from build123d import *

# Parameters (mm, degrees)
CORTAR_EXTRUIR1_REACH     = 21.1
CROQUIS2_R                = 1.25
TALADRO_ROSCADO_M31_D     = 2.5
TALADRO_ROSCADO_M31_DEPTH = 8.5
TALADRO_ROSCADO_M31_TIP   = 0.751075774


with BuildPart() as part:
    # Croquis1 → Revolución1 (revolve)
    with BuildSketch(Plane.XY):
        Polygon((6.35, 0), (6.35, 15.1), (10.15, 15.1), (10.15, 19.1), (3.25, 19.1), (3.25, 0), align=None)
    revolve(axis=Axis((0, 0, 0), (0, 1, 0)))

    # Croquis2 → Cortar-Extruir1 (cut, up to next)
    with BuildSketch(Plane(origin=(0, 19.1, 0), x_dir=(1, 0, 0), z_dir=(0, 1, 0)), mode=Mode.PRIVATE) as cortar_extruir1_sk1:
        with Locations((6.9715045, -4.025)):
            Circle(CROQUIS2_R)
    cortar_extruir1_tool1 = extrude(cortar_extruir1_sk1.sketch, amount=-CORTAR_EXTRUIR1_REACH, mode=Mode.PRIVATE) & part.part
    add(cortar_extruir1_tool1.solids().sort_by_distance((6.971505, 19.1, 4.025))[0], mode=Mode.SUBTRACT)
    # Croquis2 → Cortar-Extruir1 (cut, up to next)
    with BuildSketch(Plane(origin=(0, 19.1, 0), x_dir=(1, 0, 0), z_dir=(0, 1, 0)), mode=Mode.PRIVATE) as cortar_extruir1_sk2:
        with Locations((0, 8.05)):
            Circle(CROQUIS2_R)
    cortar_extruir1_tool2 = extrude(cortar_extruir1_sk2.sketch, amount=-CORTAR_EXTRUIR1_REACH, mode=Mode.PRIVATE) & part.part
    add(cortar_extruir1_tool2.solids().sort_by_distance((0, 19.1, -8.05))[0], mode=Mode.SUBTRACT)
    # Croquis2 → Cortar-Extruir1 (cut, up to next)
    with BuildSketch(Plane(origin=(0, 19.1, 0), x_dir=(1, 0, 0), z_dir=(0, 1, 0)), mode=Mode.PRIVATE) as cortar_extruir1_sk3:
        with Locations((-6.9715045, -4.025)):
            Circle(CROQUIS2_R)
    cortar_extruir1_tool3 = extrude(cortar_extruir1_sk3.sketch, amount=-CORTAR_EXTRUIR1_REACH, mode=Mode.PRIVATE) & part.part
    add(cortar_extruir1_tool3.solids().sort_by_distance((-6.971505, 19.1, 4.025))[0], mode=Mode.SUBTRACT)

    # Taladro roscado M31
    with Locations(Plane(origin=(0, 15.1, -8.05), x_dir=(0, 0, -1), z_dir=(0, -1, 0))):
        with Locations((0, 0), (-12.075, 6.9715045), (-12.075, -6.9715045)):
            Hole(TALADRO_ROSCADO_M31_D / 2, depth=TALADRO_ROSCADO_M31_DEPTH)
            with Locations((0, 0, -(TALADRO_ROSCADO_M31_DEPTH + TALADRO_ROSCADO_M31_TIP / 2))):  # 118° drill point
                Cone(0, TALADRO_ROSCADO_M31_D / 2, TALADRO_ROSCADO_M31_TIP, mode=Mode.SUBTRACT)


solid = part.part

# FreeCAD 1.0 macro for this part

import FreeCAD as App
import Part
import Sketcher

V = App.Vector


def add_polygon(sketch, points):
    """Adds a closed chain of lines whose ends are joined by coincident constraints."""
    first, n = sketch.GeometryCount, len(points)
    for a, b in zip(points, points[1:] + points[:1]):
        sketch.addGeometry(Part.LineSegment(App.Vector(*a, 0), App.Vector(*b, 0)), False)
    for i in range(n):
        sketch.addConstraint(Sketcher.Constraint("Coincident", first + i, 2, first + (i + 1) % n, 1))

doc = App.newDocument("Part")
params = doc.addObject("Spreadsheet::Sheet", "Params")
for row, (alias, value) in enumerate([
    ("sketch1_height", "4 mm"),
    ("sketch1_width", "3.8 mm"),
    ("sketch1_width2", "6.9 mm"),
    ("sketch1_height2", "15.1 mm"),
    ("revolution_angle", "360 deg"),
    ("sketch2_diameter", "2.5 mm"),
    ("sketch3_diameter", "2.5 mm"),
    ("sketch4_diameter", "2.5 mm"),
    ("sketch5_diameter", "2.5 mm"),
    ("hole_diameter", "2.5 mm"),
    ("hole_depth", "8.5 mm"),
], start=1):
    params.set(f"A{row}", alias)
    params.set(f"B{row}", "=" + value)
    params.setAlias(f"B{row}", alias)

body = doc.addObject("PartDesign::Body", "Body")

# Sketch on XY plane
sketch1 = body.newObject("Sketcher::SketchObject", "Sketch")
sketch1.AttachmentSupport = (doc.getObject("XY_Plane"), [""])
sketch1.MapMode = "FlatFace"
add_polygon(sketch1, [(6.3, 0), (6.3, 15.1), (10.2, 15.1), (10.2, 19.1), (3.2, 19.1), (3.2, 0)])  # lines 0-5
sketch1.addConstraint([
    Sketcher.Constraint("Vertical", 0),
    Sketcher.Constraint("Horizontal", 1),
    Sketcher.Constraint("Vertical", 2),
    Sketcher.Constraint("Horizontal", 3),
    Sketcher.Constraint("Vertical", 4),
    Sketcher.Constraint("Horizontal", 5),
    Sketcher.Constraint("PointOnObject", 4, 2, -1),
    Sketcher.Constraint("DistanceY", 2, 1, 2, 2, 4.0),
    Sketcher.Constraint("DistanceX", 1, 1, 1, 2, 3.8),
    Sketcher.Constraint("DistanceX", 3, 2, 3, 1, 6.9),
    Sketcher.Constraint("DistanceY", 0, 1, 0, 2, 15.1),
    Sketcher.Constraint("DistanceX", -1, 1, 0, 2, 6.35),
])
sketch1.setExpression("Constraints[13]", "Params.sketch1_height")
sketch1.setExpression("Constraints[14]", "Params.sketch1_width")
sketch1.setExpression("Constraints[15]", "Params.sketch1_width2")
sketch1.setExpression("Constraints[16]", "Params.sketch1_height2")
revolution = body.newObject("PartDesign::Revolution", "Revolution")
revolution.Profile = sketch1
revolution.ReferenceAxis = (sketch1, ["V_Axis"])
revolution.setExpression("Angle", "Params.revolution_angle")

# Sketch on XZ plane
sketch2 = body.newObject("Sketcher::SketchObject", "Sketch001")
sketch2.AttachmentSupport = (doc.getObject("XZ_Plane"), [""])
sketch2.MapMode = "FlatFace"
sketch2.AttachmentOffset = App.Placement(V(0, 0, -19.1), App.Rotation())
sketch2.addGeometry(Part.Circle(V(7, 4, 0), V(0, 0, 1), 1.2), False)
sketch2.addConstraint([
    Sketcher.Constraint("Diameter", 0, 2.5),
    Sketcher.Constraint("DistanceY", -1, 1, 0, 3, 4.025),
    Sketcher.Constraint("DistanceX", -1, 1, 0, 3, 6.971504),
])
sketch2.setExpression("Constraints[0]", "Params.sketch2_diameter")
pocket1 = body.newObject("PartDesign::Pocket", "Pocket")
pocket1.Profile = sketch2
pocket1.Type = "UpToFirst"
pocket1.Reversed = True

# Sketch on XZ plane
sketch3 = body.newObject("Sketcher::SketchObject", "Sketch002")
sketch3.AttachmentSupport = (doc.getObject("XZ_Plane"), [""])
sketch3.MapMode = "FlatFace"
sketch3.AttachmentOffset = App.Placement(V(0, 0, -19.1), App.Rotation())
sketch3.addGeometry(Part.Circle(V(0, -8.1, 0), V(0, 0, 1), 1.2), False)
sketch3.addConstraint([
    Sketcher.Constraint("PointOnObject", 0, 3, -2),
    Sketcher.Constraint("Diameter", 0, 2.5),
    Sketcher.Constraint("DistanceY", 0, 3, -1, 1, 8.05),
])
sketch3.setExpression("Constraints[1]", "Params.sketch3_diameter")
pocket2 = body.newObject("PartDesign::Pocket", "Pocket001")
pocket2.Profile = sketch3
pocket2.Type = "UpToFirst"
pocket2.Reversed = True

# Sketch on XZ plane
sketch4 = body.newObject("Sketcher::SketchObject", "Sketch003")
sketch4.AttachmentSupport = (doc.getObject("XZ_Plane"), [""])
sketch4.MapMode = "FlatFace"
sketch4.AttachmentOffset = App.Placement(V(0, 0, -19.1), App.Rotation())
sketch4.addGeometry(Part.Circle(V(-7, 4, 0), V(0, 0, 1), 1.2), False)
sketch4.addConstraint([
    Sketcher.Constraint("Diameter", 0, 2.5),
    Sketcher.Constraint("DistanceY", -1, 1, 0, 3, 4.025),
    Sketcher.Constraint("DistanceX", 0, 3, -1, 1, 6.971504),
])
sketch4.setExpression("Constraints[0]", "Params.sketch4_diameter")
pocket3 = body.newObject("PartDesign::Pocket", "Pocket002")
pocket3.Profile = sketch4
pocket3.Type = "UpToFirst"
pocket3.Reversed = True

# Sketch on XZ plane
sketch5 = body.newObject("Sketcher::SketchObject", "Sketch004")
sketch5.AttachmentSupport = (doc.getObject("XZ_Plane"), [""])
sketch5.MapMode = "FlatFace"
sketch5.AttachmentOffset = App.Placement(V(0, 0, -15.1), App.Rotation())
sketch5.addGeometry([
    Part.Circle(V(0, -8.1, 0), V(0, 0, 1), 1.2),
    Part.Circle(V(7, 4, 0), V(0, 0, 1), 1.2),
    Part.Circle(V(-7, 4, 0), V(0, 0, 1), 1.2),
], False)
sketch5.addConstraint([
    Sketcher.Constraint("Equal", 0, 1),
    Sketcher.Constraint("Equal", 1, 2),
    Sketcher.Constraint("Symmetric", 1, 3, 2, 3, -2),
    Sketcher.Constraint("PointOnObject", 0, 3, -2),
    Sketcher.Constraint("Diameter", 0, 2.5),
    Sketcher.Constraint("DistanceY", 0, 3, -1, 1, 8.05),
    Sketcher.Constraint("DistanceY", -1, 1, 1, 3, 4.025),
    Sketcher.Constraint("DistanceX", 2, 3, 1, 3, 13.943009),
])
sketch5.setExpression("Constraints[4]", "Params.sketch5_diameter")
doc.recompute()
hole = body.newObject("PartDesign::Hole", "Hole")
hole.Profile = sketch5
hole.ThreadType = "None"
hole.setExpression("Diameter", "Params.hole_diameter")
hole.DepthType = "Dimension"
hole.setExpression("Depth", "Params.hole_depth")
hole.DrillPoint = "Angled"
hole.DrillPointAngle = 118

doc.recompute()
